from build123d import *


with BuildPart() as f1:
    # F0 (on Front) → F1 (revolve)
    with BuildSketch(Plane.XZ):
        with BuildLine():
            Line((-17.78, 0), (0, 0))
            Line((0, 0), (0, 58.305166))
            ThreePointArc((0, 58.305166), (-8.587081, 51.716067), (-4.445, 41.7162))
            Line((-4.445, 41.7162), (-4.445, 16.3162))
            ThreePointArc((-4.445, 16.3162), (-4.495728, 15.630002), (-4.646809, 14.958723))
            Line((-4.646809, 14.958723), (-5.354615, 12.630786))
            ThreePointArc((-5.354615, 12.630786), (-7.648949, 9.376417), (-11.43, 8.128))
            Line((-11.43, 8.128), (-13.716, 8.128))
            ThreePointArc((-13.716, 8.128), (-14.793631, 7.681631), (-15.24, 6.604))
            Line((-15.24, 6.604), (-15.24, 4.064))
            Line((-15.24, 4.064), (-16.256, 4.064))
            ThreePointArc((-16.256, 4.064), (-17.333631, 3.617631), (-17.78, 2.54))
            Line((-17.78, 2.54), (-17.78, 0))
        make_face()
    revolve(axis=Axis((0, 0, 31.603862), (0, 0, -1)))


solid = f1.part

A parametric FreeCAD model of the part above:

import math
import FreeCAD as App
import Part
import Sketcher
Q = App.Units.Quantity

doc = App.newDocument("Part")
body = doc.addObject("PartDesign::Body", "Body")

# Sketch on XZ plane
sketch1 = doc.addObject("Sketcher::SketchObject", "Sketch")
body.addObject(sketch1)
sketch1.AttachmentSupport = (doc.XZ_Plane, [""])
sketch1.MapMode = "FlatFace"
sketch1.addGeometry([
    Part.LineSegment(App.Vector(-17.78, 0, 0), App.Vector(0, 0, 0)),  # 0
    Part.LineSegment(App.Vector(0, 0, 0), App.Vector(0, 58.305166, 0)),  # 1
    Part.ArcOfCircle(Part.Circle(App.Vector(0, 49.415166, 0), App.Vector(0, 0, 1), 8.89), math.radians(89.999998), math.radians(240.000002)),  # 2
    Part.LineSegment(App.Vector(-4.445, 41.7162, 0), App.Vector(-4.445, 16.3162, 0)),  # 3
    Part.ArcOfCircle(Part.Circle(App.Vector(-9.11147, 16.3162, 0), App.Vector(0, 0, 1), 4.66647), math.radians(-16.911859), math.radians(-0.000004)),  # 4
    Part.LineSegment(App.Vector(-4.646809, 14.958723, 0), App.Vector(-5.354615, 12.630786, 0)),  # 5
    Part.ArcOfCircle(Part.Circle(App.Vector(-11.430001, 14.478002, 0), App.Vector(0, 0, 1), 6.350002), math.radians(-89.999989), math.radians(-16.911848)),  # 6
    Part.LineSegment(App.Vector(-11.43, 8.128, 0), App.Vector(-13.716, 8.128, 0)),  # 7
    Part.ArcOfCircle(Part.Circle(App.Vector(-13.716001, 6.604001, 0), App.Vector(0, 0, 1), 1.523999), math.radians(89.999966), math.radians(180.000034)),  # 8
    Part.LineSegment(App.Vector(-15.24, 6.604, 0), App.Vector(-15.24, 4.064, 0)),  # 9
    Part.LineSegment(App.Vector(-15.24, 4.064, 0), App.Vector(-16.256, 4.064, 0)),  # 10
    Part.ArcOfCircle(Part.Circle(App.Vector(-16.256001, 2.540001, 0), App.Vector(0, 0, 1), 1.523999), math.radians(89.999966), math.radians(180.000034)),  # 11
    Part.LineSegment(App.Vector(-17.78, 2.54, 0), App.Vector(-17.78, 0, 0)),  # 12
], False)
sketch1.addConstraint([
    Sketcher.Constraint("Coincident", 0, 2, 1, 1),
    Sketcher.Constraint("Coincident", 1, 2, 2, 1),
    Sketcher.Constraint("Coincident", 2, 2, 3, 1),
    Sketcher.Constraint("Tangent", 3, 2, 4, 2),
    Sketcher.Constraint("Tangent", 4, 1, 5, 1),
    Sketcher.Constraint("Tangent", 5, 2, 6, 2),
    Sketcher.Constraint("Tangent", 6, 1, 7, 1),
    Sketcher.Constraint("Tangent", 7, 2, 8, 1),
    Sketcher.Constraint("Tangent", 8, 2, 9, 1),
    Sketcher.Constraint("Coincident", 9, 2, 10, 1),
    Sketcher.Constraint("Tangent", 10, 2, 11, 1),
    Sketcher.Constraint("Tangent", 11, 2, 12, 1),
    Sketcher.Constraint("Coincident", 12, 2, 0, 1),
    Sketcher.Constraint("Horizontal", 0),
    Sketcher.Constraint("Vertical", 1),
    Sketcher.Constraint("Vertical", 3),
    Sketcher.Constraint("Horizontal", 7),
    Sketcher.Constraint("Vertical", 9),
    Sketcher.Constraint("Horizontal", 10),
    Sketcher.Constraint("Vertical", 12),
    Sketcher.Constraint("Coincident", 0, 2, -1, 1),
    Sketcher.Constraint("Equal", 8, 11),
    Sketcher.Constraint("PointOnObject", 2, 3, -2),
    Sketcher.Constraint("Equal", 9, 12),
    Sketcher.Constraint("DistanceY", 3, 2, 3, 1, Q("1 in")),
    Sketcher.Constraint("Radius", 2, Q("0.35 in")),
    Sketcher.Constraint("Radius", 6, Q("0.2500001 in")),
    Sketcher.Constraint("Radius", 8, Q("0.06 in")),
    Sketcher.Constraint("DistanceX", 0, 1, 0, 2, Q("0.7 in")),
    Sketcher.Constraint("DistanceY", 9, 2, 9, 1, Q("0.1 in")),
    Sketcher.Constraint("DistanceX", 7, 2, 7, 1, Q("0.09 in")),
    Sketcher.Constraint("DistanceX", 10, 2, 10, 1, Q("0.04 in")),
    Sketcher.Constraint("DistanceX", 2, 2, -1, 1, Q("0.175 in")),
    Sketcher.Constraint("Radius", 4, Q("4.66647 mm")),
    Sketcher.Constraint("DistanceY", -1, 1, 4, 3, Q("16.3162 mm")),
])
revolution = doc.addObject("PartDesign::Revolution", "Revolution")
body.addObject(revolution)
revolution.Profile = sketch1
revolution.ReferenceAxis = (sketch1, ["V_Axis"])
revolution.Angle = 360

doc.recompute()
